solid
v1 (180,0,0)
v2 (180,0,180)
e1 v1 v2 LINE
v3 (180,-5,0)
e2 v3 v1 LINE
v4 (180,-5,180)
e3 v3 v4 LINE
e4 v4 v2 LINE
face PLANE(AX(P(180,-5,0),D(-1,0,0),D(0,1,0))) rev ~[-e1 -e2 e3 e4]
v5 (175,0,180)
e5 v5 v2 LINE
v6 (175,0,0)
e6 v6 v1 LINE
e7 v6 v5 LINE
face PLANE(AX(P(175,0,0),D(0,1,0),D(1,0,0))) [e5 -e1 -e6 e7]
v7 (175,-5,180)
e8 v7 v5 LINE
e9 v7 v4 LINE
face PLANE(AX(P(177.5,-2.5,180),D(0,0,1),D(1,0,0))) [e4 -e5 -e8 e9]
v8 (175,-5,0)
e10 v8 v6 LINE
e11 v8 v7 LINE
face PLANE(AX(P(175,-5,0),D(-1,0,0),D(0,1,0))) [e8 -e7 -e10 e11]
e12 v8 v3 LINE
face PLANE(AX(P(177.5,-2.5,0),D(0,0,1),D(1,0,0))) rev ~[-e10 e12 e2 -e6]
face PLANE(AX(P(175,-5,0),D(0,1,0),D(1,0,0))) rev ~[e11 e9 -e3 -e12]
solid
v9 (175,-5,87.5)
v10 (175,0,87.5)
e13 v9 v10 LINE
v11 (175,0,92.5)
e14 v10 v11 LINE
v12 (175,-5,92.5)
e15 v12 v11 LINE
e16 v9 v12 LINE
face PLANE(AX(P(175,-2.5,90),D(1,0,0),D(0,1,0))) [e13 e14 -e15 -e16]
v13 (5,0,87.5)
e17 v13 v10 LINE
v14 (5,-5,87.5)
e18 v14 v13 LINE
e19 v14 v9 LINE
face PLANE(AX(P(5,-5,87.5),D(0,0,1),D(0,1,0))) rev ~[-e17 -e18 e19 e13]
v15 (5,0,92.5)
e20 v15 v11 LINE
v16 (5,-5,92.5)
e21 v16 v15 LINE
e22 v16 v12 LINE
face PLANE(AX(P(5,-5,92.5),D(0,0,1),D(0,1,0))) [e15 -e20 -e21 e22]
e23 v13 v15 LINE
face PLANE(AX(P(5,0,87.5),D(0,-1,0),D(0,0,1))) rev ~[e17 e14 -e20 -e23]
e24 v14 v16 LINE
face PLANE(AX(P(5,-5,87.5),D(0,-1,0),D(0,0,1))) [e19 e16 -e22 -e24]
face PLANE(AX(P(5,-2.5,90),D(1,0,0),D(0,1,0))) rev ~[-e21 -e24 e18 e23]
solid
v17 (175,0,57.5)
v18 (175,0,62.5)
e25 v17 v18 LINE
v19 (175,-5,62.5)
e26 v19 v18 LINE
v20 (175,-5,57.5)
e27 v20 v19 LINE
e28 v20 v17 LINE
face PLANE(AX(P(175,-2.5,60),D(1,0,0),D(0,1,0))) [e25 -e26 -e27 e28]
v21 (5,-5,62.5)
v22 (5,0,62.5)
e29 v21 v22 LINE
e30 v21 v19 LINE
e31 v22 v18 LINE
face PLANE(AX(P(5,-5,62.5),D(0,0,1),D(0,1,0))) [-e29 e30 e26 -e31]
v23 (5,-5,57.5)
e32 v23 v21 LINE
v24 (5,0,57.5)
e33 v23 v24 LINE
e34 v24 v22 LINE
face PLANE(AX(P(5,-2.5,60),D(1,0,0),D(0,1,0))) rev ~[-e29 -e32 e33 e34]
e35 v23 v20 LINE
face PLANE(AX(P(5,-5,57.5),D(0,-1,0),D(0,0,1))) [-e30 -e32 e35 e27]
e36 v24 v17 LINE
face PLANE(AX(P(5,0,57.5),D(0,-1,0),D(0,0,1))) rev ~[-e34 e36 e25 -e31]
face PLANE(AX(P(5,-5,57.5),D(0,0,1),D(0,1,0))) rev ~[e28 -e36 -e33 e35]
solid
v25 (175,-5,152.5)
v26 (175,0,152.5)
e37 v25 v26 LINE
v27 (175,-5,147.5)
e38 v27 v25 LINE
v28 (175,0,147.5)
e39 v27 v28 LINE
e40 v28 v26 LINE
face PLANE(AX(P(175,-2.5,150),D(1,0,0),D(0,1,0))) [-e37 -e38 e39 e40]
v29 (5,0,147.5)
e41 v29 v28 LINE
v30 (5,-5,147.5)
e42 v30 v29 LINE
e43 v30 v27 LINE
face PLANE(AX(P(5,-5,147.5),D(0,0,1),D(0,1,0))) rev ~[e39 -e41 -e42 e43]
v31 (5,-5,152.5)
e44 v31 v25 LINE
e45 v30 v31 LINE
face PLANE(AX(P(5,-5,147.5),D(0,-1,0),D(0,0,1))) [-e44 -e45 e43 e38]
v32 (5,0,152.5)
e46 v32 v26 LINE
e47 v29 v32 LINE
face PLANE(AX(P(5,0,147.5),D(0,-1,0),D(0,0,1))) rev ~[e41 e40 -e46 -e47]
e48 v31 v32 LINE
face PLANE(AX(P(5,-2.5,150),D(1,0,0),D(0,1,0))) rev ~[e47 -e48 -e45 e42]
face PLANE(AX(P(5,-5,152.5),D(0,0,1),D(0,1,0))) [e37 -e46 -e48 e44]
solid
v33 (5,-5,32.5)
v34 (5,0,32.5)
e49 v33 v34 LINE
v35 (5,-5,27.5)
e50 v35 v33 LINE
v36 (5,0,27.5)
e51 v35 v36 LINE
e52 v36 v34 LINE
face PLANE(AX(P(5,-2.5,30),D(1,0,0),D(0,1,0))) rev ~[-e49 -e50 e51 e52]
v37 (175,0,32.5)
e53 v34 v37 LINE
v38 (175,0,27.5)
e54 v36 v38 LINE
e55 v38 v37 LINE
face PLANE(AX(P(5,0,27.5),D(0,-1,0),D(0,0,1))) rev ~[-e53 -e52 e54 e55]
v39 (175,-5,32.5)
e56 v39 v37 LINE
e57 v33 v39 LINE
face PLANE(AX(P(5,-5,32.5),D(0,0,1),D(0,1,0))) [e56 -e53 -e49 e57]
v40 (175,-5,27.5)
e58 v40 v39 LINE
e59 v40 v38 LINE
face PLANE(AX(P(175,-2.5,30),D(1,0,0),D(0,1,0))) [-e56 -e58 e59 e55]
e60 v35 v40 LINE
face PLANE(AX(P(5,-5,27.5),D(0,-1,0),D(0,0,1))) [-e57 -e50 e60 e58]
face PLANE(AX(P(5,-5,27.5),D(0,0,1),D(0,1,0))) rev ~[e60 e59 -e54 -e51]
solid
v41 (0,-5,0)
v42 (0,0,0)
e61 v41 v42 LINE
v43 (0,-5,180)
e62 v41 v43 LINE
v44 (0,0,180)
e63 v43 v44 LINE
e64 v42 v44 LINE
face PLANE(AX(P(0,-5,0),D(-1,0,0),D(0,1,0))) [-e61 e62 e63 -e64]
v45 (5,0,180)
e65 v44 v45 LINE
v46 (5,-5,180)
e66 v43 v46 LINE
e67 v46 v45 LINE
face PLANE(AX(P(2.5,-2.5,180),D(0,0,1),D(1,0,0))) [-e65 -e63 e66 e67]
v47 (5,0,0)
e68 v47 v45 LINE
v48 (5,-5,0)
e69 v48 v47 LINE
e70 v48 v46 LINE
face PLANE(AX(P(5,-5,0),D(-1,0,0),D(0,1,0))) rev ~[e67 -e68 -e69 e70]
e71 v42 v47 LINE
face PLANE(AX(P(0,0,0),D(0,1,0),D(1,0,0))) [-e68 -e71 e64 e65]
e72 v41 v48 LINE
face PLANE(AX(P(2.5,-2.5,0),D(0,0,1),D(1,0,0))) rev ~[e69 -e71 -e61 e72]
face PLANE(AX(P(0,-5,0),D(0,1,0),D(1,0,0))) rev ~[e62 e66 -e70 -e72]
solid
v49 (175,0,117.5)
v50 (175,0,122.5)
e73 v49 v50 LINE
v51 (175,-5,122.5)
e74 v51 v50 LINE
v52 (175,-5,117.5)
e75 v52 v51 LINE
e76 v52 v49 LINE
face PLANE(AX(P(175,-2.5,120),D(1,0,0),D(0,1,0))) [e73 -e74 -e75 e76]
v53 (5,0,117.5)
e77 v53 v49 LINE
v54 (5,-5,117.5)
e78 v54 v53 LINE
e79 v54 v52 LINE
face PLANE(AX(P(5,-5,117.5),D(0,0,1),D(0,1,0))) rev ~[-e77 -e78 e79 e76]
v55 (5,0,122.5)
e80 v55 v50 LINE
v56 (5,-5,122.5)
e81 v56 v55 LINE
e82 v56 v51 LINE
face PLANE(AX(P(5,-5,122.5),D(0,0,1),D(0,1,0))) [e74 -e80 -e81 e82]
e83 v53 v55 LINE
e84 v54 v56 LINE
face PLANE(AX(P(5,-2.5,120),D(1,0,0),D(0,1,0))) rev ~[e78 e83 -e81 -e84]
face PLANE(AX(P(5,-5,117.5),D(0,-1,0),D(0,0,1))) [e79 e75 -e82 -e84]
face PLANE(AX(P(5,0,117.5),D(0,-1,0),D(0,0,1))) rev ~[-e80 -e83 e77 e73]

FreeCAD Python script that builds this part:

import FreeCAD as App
import Part
import Sketcher

doc = App.newDocument("Part")
body = doc.addObject("PartDesign::Body", "Body")
body.AllowCompound = True

# Sketch on XY plane
sketch1 = doc.addObject("Sketcher::SketchObject", "Sketch")
body.addObject(sketch1)
sketch1.AttachmentSupport = (doc.XY_Plane, [""])
sketch1.MapMode = "FlatFace"
sketch1.addGeometry([
    Part.LineSegment(App.Vector(0, 0, 0), App.Vector(0, -5, 0)),  # 0
    Part.LineSegment(App.Vector(0, -5, 0), App.Vector(5, -5, 0)),  # 1
    Part.LineSegment(App.Vector(5, -5, 0), App.Vector(5, 0, 0)),  # 2
    Part.LineSegment(App.Vector(5, 0, 0), App.Vector(0, 0, 0)),  # 3
    Part.LineSegment(App.Vector(175, 0, 0), App.Vector(175, -5, 0)),  # 4
    Part.LineSegment(App.Vector(175, -5, 0), App.Vector(180, -5, 0)),  # 5
    Part.LineSegment(App.Vector(180, -5, 0), App.Vector(180, 0, 0)),  # 6
    Part.LineSegment(App.Vector(180, 0, 0), App.Vector(175, 0, 0)),  # 7
], False)
sketch1.addConstraint([
    Sketcher.Constraint("Coincident", 0, 2, 1, 1),
    Sketcher.Constraint("Coincident", 1, 2, 2, 1),
    Sketcher.Constraint("Coincident", 2, 2, 3, 1),
    Sketcher.Constraint("Coincident", 3, 2, 0, 1),
    Sketcher.Constraint("Coincident", 4, 2, 5, 1),
    Sketcher.Constraint("Coincident", 5, 2, 6, 1),
    Sketcher.Constraint("Coincident", 6, 2, 7, 1),
    Sketcher.Constraint("Coincident", 7, 2, 4, 1),
    Sketcher.Constraint("Vertical", 0),
    Sketcher.Constraint("Horizontal", 1),
    Sketcher.Constraint("Vertical", 2),
    Sketcher.Constraint("Horizontal", 3),
    Sketcher.Constraint("Vertical", 4),
    Sketcher.Constraint("Horizontal", 5),
    Sketcher.Constraint("Vertical", 6),
    Sketcher.Constraint("Horizontal", 7),
    Sketcher.Constraint("Coincident", 3, 2, -1, 1),
    Sketcher.Constraint("PointOnObject", 6, 2, -1),
    Sketcher.Constraint("Horizontal", 1, 2, 4, 2),
    Sketcher.Constraint("Equal", 3, 5),
    Sketcher.Constraint("Equal", 7, 0),
    Sketcher.Constraint("DistanceX", 1, 1, 1, 2, 5.0),
    Sketcher.Constraint("DistanceX", -1, 1, 4, 2, 175.0),
])
pad1 = doc.addObject("PartDesign::Pad", "Pad")
body.addObject(pad1)
pad1.Profile = sketch1
pad1.Length = 180
body2 = doc.addObject("PartDesign::Body", "Body001")
body2.AllowCompound = True

# Sketch on YZ plane
sketch2 = doc.addObject("Sketcher::SketchObject", "Sketch001")
body2.addObject(sketch2)
sketch2.AttachmentSupport = (doc.getObject("YZ_Plane001"), [""])
sketch2.MapMode = "FlatFace"
sketch2.AttachmentOffset = App.Placement(App.Vector(0, 0, 5), App.Rotation())
sketch2.addGeometry([
    Part.LineSegment(App.Vector(-5, 32, 0), App.Vector(-5, 28, 0)),  # 0
    Part.LineSegment(App.Vector(-5, 28, 0), App.Vector(0, 28, 0)),  # 1
    Part.LineSegment(App.Vector(0, 28, 0), App.Vector(0, 32, 0)),  # 2
    Part.LineSegment(App.Vector(0, 32, 0), App.Vector(-5, 32, 0)),  # 3
    Part.LineSegment(App.Vector(-5, 62, 0), App.Vector(-5, 58, 0)),  # 4
    Part.LineSegment(App.Vector(-5, 58, 0), App.Vector(0, 58, 0)),  # 5
    Part.LineSegment(App.Vector(0, 58, 0), App.Vector(0, 62, 0)),  # 6
    Part.LineSegment(App.Vector(0, 62, 0), App.Vector(-5, 62, 0)),  # 7
    Part.LineSegment(App.Vector(-5, 92, 0), App.Vector(-5, 88, 0)),  # 8
    Part.LineSegment(App.Vector(-5, 88, 0), App.Vector(0, 88, 0)),  # 9
    Part.LineSegment(App.Vector(0, 88, 0), App.Vector(0, 92, 0)),  # 10
    Part.LineSegment(App.Vector(0, 92, 0), App.Vector(-5, 92, 0)),  # 11
    Part.LineSegment(App.Vector(-5, 122, 0), App.Vector(-5, 118, 0)),  # 12
    Part.LineSegment(App.Vector(-5, 118, 0), App.Vector(0, 118, 0)),  # 13
    Part.LineSegment(App.Vector(0, 118, 0), App.Vector(0, 122, 0)),  # 14
    Part.LineSegment(App.Vector(0, 122, 0), App.Vector(-5, 122, 0)),  # 15
    Part.LineSegment(App.Vector(-5, 152, 0), App.Vector(-5, 148, 0)),  # 16
    Part.LineSegment(App.Vector(-5, 148, 0), App.Vector(0, 148, 0)),  # 17
    Part.LineSegment(App.Vector(0, 148, 0), App.Vector(0, 152, 0)),  # 18
    Part.LineSegment(App.Vector(0, 152, 0), App.Vector(-5, 152, 0)),  # 19
], False)
sketch2.addConstraint([
    Sketcher.Constraint("Coincident", 0, 2, 1, 1),
    Sketcher.Constraint("Coincident", 1, 2, 2, 1),
    Sketcher.Constraint("Coincident", 2, 2, 3, 1),
    Sketcher.Constraint("Coincident", 3, 2, 0, 1),
    Sketcher.Constraint("Coincident", 4, 2, 5, 1),
    Sketcher.Constraint("Coincident", 5, 2, 6, 1),
    Sketcher.Constraint("Coincident", 6, 2, 7, 1),
    Sketcher.Constraint("Coincident", 7, 2, 4, 1),
    Sketcher.Constraint("Coincident", 8, 2, 9, 1),
    Sketcher.Constraint("Coincident", 9, 2, 10, 1),
    Sketcher.Constraint("Coincident", 10, 2, 11, 1),
    Sketcher.Constraint("Coincident", 11, 2, 8, 1),
    Sketcher.Constraint("Coincident", 12, 2, 13, 1),
    Sketcher.Constraint("Coincident", 13, 2, 14, 1),
    Sketcher.Constraint("Coincident", 14, 2, 15, 1),
    Sketcher.Constraint("Coincident", 15, 2, 12, 1),
    Sketcher.Constraint("Coincident", 16, 2, 17, 1),
    Sketcher.Constraint("Coincident", 17, 2, 18, 1),
    Sketcher.Constraint("Coincident", 18, 2, 19, 1),
    Sketcher.Constraint("Coincident", 19, 2, 16, 1),
    Sketcher.Constraint("Vertical", 0),
    Sketcher.Constraint("Horizontal", 1),
    Sketcher.Constraint("Vertical", 2),
    Sketcher.Constraint("Horizontal", 3),
    Sketcher.Constraint("Vertical", 4),
    Sketcher.Constraint("Horizontal", 5),
    Sketcher.Constraint("Vertical", 6),
    Sketcher.Constraint("Horizontal", 7),
    Sketcher.Constraint("Vertical", 8),
    Sketcher.Constraint("Horizontal", 9),
    Sketcher.Constraint("Vertical", 10),
    Sketcher.Constraint("Horizontal", 11),
    Sketcher.Constraint("Vertical", 12),
    Sketcher.Constraint("Horizontal", 13),
    Sketcher.Constraint("Vertical", 14),
    Sketcher.Constraint("Horizontal", 15),
    Sketcher.Constraint("Vertical", 16),
    Sketcher.Constraint("Horizontal", 17),
    Sketcher.Constraint("Vertical", 18),
    Sketcher.Constraint("Horizontal", 19),
    Sketcher.Constraint("PointOnObject", 1, 2, -2),
    Sketcher.Constraint("PointOnObject", 5, 2, -2),
    Sketcher.Constraint("PointOnObject", 9, 2, -2),
    Sketcher.Constraint("PointOnObject", 13, 2, -2),
    Sketcher.Constraint("PointOnObject", 17, 2, -2),
    Sketcher.Constraint("Vertical", 3, 2, 4, 2),
    Sketcher.Constraint("Vertical", 7, 2, 8, 2),
    Sketcher.Constraint("Vertical", 11, 2, 12, 2),
    Sketcher.Constraint("Vertical", 15, 2, 16, 2),
    Sketcher.Constraint("Equal", 19, 0),
    Sketcher.Constraint("Equal", 2, 4),
    Sketcher.Constraint("Equal", 6, 8),
    Sketcher.Constraint("Equal", 10, 12),
    Sketcher.Constraint("Equal", 14, 16),
    Sketcher.Constraint("DistanceX", 1, 1, 1, 2, 5.0),
    Sketcher.Constraint("DistanceY", 3, 2, 4, 2, 25.0),
    Sketcher.Constraint("DistanceY", 7, 2, 8, 2, 25.0),
    Sketcher.Constraint("DistanceY", 11, 2, 12, 2, 25.0),
    Sketcher.Constraint("DistanceY", 15, 2, 16, 2, 25.0),
    Sketcher.Constraint("DistanceY", -1, 1, 0, 2, 27.5),
])
pad2 = doc.addObject("PartDesign::Pad", "Pad001")
body2.addObject(pad2)
pad2.Profile = sketch2
pad2.Length = 170

doc.recompute()
